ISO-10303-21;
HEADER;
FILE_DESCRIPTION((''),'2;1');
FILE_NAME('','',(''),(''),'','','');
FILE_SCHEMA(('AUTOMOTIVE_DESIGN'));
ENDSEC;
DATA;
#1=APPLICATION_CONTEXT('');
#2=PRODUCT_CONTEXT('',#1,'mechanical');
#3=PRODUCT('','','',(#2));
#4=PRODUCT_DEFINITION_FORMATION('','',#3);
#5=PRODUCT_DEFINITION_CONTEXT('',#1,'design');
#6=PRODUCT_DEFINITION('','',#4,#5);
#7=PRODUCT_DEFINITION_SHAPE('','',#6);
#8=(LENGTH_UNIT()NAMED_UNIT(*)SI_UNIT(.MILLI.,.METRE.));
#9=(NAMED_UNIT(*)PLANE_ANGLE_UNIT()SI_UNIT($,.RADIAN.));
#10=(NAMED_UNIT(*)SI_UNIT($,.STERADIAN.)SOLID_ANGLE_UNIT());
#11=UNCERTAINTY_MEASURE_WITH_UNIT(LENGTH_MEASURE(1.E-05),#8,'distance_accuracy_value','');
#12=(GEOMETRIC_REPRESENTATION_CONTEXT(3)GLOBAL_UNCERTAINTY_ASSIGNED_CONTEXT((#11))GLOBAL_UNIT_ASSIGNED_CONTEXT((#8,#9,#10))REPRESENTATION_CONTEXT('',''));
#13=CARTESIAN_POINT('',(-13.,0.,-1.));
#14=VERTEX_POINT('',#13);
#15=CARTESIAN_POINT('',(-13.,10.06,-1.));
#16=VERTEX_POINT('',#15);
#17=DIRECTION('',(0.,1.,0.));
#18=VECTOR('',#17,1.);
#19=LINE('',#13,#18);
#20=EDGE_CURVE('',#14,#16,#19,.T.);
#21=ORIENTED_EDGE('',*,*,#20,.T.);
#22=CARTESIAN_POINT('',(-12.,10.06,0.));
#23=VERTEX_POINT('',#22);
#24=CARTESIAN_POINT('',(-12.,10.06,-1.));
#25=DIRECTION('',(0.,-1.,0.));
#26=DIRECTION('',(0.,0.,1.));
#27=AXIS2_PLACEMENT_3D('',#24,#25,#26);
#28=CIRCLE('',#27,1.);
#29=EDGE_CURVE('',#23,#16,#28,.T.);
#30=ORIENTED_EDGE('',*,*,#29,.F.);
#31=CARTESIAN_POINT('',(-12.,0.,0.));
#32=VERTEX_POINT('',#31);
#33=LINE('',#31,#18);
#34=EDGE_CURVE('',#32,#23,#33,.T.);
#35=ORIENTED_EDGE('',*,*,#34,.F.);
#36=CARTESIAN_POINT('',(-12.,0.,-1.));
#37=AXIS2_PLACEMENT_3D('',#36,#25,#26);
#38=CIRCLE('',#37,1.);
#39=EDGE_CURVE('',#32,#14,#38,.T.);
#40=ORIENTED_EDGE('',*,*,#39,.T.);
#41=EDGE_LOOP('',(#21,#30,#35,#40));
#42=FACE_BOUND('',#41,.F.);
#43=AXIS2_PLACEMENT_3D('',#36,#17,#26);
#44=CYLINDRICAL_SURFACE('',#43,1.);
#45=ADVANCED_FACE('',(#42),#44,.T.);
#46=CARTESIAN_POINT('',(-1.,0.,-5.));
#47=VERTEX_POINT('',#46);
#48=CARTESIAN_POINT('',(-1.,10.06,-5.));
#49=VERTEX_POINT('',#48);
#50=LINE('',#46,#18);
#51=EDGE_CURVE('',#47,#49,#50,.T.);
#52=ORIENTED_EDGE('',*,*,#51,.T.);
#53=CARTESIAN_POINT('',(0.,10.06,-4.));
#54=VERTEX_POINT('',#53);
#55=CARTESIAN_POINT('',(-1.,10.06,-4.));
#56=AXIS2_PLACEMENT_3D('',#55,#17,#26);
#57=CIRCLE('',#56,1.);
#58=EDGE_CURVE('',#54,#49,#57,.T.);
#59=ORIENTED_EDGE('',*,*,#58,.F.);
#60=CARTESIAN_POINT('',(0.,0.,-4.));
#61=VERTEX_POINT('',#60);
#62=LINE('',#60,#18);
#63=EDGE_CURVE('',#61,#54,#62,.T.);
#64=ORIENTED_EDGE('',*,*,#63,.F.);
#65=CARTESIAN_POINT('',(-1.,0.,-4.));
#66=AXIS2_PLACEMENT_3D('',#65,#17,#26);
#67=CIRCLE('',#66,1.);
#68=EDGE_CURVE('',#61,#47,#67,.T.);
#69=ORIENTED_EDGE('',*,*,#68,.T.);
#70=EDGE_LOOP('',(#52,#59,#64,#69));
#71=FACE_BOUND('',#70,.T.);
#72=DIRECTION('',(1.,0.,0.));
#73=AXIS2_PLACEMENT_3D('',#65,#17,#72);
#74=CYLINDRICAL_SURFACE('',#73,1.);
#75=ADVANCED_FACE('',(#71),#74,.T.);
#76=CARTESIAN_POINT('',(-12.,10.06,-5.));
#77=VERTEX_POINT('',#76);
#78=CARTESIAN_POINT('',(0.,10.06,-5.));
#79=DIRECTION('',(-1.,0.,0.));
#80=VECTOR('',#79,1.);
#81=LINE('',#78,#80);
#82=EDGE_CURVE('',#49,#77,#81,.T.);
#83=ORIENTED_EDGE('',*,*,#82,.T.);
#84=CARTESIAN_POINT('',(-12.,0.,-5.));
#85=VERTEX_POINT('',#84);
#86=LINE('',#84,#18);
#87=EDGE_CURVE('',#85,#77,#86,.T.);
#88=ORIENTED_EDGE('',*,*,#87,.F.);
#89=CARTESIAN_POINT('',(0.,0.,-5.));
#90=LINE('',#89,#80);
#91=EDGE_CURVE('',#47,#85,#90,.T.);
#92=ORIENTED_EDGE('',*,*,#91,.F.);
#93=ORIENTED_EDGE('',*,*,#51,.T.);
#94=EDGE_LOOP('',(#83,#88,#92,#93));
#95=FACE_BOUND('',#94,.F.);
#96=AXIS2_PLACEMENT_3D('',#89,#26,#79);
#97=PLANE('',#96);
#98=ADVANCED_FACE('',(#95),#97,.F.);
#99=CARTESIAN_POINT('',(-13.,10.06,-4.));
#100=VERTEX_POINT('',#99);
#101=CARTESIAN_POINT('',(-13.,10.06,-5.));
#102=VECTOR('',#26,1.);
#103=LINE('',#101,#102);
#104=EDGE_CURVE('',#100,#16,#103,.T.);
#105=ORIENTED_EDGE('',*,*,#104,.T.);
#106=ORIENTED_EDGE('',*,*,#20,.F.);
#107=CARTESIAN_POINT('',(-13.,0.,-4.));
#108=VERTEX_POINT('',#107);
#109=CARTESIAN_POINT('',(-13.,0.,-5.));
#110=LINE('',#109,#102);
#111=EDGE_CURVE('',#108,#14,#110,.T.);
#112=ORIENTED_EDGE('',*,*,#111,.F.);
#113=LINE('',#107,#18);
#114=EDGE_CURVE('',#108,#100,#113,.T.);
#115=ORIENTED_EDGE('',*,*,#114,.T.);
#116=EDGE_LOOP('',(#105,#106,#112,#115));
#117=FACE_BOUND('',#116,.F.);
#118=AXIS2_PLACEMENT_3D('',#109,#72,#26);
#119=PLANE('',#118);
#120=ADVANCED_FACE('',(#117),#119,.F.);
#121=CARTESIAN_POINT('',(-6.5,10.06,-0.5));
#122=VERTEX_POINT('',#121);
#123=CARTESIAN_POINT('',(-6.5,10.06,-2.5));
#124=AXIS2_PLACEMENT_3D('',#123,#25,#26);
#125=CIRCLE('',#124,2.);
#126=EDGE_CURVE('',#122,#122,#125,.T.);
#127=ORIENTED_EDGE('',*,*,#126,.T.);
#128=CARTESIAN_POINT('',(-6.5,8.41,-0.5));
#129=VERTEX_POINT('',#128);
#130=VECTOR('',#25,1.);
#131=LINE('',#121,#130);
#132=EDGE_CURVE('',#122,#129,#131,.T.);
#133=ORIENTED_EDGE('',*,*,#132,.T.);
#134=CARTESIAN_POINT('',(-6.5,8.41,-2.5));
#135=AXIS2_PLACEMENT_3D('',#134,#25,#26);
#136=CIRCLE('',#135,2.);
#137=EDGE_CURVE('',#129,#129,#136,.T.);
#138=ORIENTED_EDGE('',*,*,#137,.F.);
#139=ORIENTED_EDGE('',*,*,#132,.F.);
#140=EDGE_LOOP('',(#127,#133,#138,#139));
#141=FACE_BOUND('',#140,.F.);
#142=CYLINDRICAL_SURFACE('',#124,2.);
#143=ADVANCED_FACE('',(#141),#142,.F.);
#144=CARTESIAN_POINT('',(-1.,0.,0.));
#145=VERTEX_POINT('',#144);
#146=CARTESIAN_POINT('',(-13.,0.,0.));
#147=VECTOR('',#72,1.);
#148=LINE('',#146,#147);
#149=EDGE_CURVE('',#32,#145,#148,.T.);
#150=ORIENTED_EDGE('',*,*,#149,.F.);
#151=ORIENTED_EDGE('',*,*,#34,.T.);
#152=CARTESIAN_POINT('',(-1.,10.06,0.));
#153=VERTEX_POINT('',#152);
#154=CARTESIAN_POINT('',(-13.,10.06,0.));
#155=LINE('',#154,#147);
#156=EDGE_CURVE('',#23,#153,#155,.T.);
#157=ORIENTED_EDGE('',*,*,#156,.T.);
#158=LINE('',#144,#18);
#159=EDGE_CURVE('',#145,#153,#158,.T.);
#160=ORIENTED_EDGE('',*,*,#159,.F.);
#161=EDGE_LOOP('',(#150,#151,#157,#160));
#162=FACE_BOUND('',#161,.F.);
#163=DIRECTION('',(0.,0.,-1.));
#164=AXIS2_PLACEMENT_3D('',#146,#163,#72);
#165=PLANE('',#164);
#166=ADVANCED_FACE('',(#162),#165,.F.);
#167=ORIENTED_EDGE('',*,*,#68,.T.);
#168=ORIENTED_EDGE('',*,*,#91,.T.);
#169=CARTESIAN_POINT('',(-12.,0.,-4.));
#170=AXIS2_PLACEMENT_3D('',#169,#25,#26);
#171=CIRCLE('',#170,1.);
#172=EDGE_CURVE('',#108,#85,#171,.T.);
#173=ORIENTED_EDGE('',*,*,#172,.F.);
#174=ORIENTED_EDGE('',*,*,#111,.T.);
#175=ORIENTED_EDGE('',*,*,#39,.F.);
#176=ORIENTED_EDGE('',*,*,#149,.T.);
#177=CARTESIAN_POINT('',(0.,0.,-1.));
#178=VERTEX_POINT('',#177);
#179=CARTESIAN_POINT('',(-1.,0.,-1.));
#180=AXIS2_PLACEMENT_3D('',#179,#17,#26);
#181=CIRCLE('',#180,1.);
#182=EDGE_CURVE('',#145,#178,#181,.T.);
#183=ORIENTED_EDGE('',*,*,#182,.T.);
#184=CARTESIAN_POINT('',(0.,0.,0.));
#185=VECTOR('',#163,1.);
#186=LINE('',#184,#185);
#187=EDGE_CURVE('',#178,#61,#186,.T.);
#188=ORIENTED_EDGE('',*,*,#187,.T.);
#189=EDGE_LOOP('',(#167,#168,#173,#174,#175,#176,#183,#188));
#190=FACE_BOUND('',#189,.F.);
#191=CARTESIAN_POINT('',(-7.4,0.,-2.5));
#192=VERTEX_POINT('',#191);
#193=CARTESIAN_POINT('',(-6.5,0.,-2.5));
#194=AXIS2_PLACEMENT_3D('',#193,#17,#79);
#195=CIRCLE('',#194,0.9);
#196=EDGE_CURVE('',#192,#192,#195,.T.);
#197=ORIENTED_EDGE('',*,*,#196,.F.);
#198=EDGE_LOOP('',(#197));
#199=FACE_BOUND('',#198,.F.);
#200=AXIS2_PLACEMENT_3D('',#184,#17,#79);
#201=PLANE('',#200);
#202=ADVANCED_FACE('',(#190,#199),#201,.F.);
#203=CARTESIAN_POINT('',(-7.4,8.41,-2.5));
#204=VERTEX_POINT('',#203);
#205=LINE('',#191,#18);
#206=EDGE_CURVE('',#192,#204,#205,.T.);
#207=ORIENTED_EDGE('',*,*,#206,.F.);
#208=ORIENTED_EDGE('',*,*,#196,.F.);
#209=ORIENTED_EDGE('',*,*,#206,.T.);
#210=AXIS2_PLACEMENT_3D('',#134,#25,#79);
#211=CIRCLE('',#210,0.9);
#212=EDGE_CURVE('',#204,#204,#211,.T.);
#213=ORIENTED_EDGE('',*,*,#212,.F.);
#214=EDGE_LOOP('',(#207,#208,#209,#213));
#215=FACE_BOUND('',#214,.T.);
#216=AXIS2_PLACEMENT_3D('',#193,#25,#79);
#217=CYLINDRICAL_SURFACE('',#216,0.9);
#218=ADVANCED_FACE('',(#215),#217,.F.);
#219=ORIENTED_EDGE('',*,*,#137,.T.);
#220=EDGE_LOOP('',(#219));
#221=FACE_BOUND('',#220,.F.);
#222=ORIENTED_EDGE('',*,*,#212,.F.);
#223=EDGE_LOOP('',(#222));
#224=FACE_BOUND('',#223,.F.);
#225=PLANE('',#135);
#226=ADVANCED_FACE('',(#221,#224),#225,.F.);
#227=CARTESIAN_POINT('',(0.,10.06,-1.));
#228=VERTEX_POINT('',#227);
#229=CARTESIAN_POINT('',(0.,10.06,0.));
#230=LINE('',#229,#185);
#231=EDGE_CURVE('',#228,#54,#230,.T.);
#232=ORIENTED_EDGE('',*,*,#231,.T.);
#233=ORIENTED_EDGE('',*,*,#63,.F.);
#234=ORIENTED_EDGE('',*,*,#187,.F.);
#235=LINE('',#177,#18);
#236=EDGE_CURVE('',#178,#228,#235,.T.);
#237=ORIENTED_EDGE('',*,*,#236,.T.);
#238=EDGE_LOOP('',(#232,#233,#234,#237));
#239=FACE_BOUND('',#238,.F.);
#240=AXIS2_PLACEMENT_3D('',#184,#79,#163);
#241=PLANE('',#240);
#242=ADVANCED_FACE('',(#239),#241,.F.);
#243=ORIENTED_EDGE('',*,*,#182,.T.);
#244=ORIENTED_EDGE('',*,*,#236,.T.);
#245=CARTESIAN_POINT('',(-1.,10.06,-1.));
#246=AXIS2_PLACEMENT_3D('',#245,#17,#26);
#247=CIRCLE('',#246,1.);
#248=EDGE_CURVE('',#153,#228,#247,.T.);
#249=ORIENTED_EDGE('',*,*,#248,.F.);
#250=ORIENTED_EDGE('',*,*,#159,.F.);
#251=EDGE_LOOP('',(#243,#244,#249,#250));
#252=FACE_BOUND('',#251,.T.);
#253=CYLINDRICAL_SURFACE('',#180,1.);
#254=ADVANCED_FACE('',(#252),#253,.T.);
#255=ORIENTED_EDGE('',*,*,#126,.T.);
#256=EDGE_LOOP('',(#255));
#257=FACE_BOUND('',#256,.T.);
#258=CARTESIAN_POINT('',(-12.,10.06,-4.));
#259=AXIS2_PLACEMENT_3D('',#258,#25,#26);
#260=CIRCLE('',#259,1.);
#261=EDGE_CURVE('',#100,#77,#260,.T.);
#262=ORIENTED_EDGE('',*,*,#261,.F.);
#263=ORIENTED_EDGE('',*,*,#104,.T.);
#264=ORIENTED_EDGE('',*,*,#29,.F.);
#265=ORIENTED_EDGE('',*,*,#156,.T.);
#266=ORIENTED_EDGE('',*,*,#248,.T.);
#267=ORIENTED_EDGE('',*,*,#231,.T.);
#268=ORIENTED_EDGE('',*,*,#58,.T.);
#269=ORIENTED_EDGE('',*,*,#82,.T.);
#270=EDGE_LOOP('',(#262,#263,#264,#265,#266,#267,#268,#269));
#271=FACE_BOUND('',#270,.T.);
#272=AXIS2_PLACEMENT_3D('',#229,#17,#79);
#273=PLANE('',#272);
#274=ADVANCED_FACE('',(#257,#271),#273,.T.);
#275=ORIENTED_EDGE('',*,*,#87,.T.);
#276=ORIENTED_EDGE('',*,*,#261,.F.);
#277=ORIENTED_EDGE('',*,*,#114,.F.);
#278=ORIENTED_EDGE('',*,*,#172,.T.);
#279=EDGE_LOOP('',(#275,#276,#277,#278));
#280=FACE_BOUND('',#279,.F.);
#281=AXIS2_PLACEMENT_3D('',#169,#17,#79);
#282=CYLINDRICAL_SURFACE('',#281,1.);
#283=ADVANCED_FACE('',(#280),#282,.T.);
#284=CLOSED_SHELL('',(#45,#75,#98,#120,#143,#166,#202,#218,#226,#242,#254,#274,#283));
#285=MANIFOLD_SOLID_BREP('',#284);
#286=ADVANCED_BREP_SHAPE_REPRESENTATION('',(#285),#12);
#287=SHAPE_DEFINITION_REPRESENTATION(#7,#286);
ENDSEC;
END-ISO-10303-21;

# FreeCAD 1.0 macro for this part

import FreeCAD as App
import Part
import Sketcher
Q = App.Units.Quantity


def edges_at(feature, points):
    """Names of the edges that pass closest to the given points."""
    edges = feature.Shape.Edges
    near = lambda p: min(range(len(edges)), key=lambda i: edges[i].distToShape(Part.Vertex(*p))[0])
    return sorted({f"Edge{near(p) + 1}" for p in points})

doc = App.newDocument("Part")
params = doc.addObject("Spreadsheet::Sheet", "Params")
for row, (alias, value) in enumerate([
    ("sketch1_diameter", "1.8 mm"),
    ("sketch1_width", "13 mm"),
    ("sketch1_height", "5 mm"),
    ("pad1_length", "10.06 mm"),
    ("sketch2_diameter", "4 mm"),
    ("hole_diameter", "4 mm"),
    ("hole_depth", "1.65 mm"),
    ("fillet_radius", "1 mm"),
], start=1):
    params.set(f"A{row}", alias)
    params.set(f"B{row}", "=" + value)
    params.setAlias(f"B{row}", alias)

body = doc.addObject("PartDesign::Body", "Body")

sketch1 = body.newObject("Sketcher::SketchObject", "Sketch")
sketch1.AttachmentSupport = (doc.getObject("XZ_Plane"), [""])
sketch1.MapMode = "FlatFace"
sketch1.addGeometry(Part.LineSegment(App.Vector(-13, 0, 0), App.Vector(0, 0, 0)), False)
sketch1.addGeometry(Part.LineSegment(App.Vector(0, 0, 0), App.Vector(0, -5, 0)), False)
sketch1.addGeometry(Part.LineSegment(App.Vector(0, -5, 0), App.Vector(-13, -5, 0)), False)
sketch1.addGeometry(Part.LineSegment(App.Vector(-13, -5, 0), App.Vector(-13, 0, 0)), False)
sketch1.addGeometry(Part.Circle(App.Vector(-6.5, -2.5, 0), App.Vector(0, 0, 1), 0.9), False)
sketch1.addConstraint(Sketcher.Constraint("Coincident", 0, 2, 1, 1))
sketch1.addConstraint(Sketcher.Constraint("Coincident", 1, 2, 2, 1))
sketch1.addConstraint(Sketcher.Constraint("Coincident", 2, 2, 3, 1))
sketch1.addConstraint(Sketcher.Constraint("Coincident", 3, 2, 0, 1))
sketch1.addConstraint(Sketcher.Constraint("Horizontal", 0))
sketch1.addConstraint(Sketcher.Constraint("Vertical", 1))
sketch1.addConstraint(Sketcher.Constraint("Horizontal", 2))
sketch1.addConstraint(Sketcher.Constraint("Vertical", 3))
sketch1.addConstraint(Sketcher.Constraint("Coincident", 0, 2, -1, 1))
sketch1.addConstraint(Sketcher.Constraint("Diameter", 4, Q("1.8 mm")))
sketch1.addConstraint(Sketcher.Constraint("DistanceX", 0, 1, 0, 2, Q("13 mm")))
sketch1.addConstraint(Sketcher.Constraint("DistanceY", 1, 2, 1, 1, Q("5 mm")))
sketch1.addConstraint(Sketcher.Constraint("DistanceX", 4, 3, -1, 1, Q("6.5 mm")))
sketch1.addConstraint(Sketcher.Constraint("DistanceY", 4, 3, -1, 1, Q("2.5 mm")))
sketch1.setExpression("Constraints[9]", "Params.sketch1_diameter")
sketch1.setExpression("Constraints[10]", "Params.sketch1_width")
sketch1.setExpression("Constraints[11]", "Params.sketch1_height")
pad1 = body.newObject("PartDesign::Pad", "Pad")
pad1.Profile = sketch1
pad1.setExpression("Length", "Params.pad1_length")
pad1.Reversed = True

sketch2 = body.newObject("Sketcher::SketchObject", "Sketch001")
sketch2.AttachmentSupport = (doc.getObject("XZ_Plane"), [""])
sketch2.MapMode = "FlatFace"
sketch2.AttachmentOffset = App.Placement(App.Vector(0, 0, -10.06), App.Rotation())
sketch2.addGeometry(Part.Circle(App.Vector(-6.5, -2.5, 0), App.Vector(0, 0, 1), 2), False)
sketch2.addConstraint(Sketcher.Constraint("Diameter", 0, Q("4 mm")))
sketch2.addConstraint(Sketcher.Constraint("DistanceX", 0, 3, -1, 1, Q("6.5 mm")))
sketch2.addConstraint(Sketcher.Constraint("DistanceY", 0, 3, -1, 1, Q("2.5 mm")))
sketch2.setExpression("Constraints[0]", "Params.sketch2_diameter")
doc.recompute()
hole = body.newObject("PartDesign::Hole", "Hole")
hole.Profile = sketch2
hole.ThreadType = "None"
hole.setExpression("Diameter", "Params.hole_diameter")
hole.DepthType = "Dimension"
hole.setExpression("Depth", "Params.hole_depth")
hole.DrillPoint = "Flat"
hole.Reversed = True
doc.recompute()

fillet = body.newObject("PartDesign::Fillet", "Fillet")
fillet.Base = (hole, edges_at(hole, [
    (0, 5.03, 0),
    (0, 5.03, -5),
    (-13, 5.03, 0),
    (-13, 5.03, -5),
]))
fillet.setExpression("Radius", "Params.fillet_radius")

doc.recompute()
